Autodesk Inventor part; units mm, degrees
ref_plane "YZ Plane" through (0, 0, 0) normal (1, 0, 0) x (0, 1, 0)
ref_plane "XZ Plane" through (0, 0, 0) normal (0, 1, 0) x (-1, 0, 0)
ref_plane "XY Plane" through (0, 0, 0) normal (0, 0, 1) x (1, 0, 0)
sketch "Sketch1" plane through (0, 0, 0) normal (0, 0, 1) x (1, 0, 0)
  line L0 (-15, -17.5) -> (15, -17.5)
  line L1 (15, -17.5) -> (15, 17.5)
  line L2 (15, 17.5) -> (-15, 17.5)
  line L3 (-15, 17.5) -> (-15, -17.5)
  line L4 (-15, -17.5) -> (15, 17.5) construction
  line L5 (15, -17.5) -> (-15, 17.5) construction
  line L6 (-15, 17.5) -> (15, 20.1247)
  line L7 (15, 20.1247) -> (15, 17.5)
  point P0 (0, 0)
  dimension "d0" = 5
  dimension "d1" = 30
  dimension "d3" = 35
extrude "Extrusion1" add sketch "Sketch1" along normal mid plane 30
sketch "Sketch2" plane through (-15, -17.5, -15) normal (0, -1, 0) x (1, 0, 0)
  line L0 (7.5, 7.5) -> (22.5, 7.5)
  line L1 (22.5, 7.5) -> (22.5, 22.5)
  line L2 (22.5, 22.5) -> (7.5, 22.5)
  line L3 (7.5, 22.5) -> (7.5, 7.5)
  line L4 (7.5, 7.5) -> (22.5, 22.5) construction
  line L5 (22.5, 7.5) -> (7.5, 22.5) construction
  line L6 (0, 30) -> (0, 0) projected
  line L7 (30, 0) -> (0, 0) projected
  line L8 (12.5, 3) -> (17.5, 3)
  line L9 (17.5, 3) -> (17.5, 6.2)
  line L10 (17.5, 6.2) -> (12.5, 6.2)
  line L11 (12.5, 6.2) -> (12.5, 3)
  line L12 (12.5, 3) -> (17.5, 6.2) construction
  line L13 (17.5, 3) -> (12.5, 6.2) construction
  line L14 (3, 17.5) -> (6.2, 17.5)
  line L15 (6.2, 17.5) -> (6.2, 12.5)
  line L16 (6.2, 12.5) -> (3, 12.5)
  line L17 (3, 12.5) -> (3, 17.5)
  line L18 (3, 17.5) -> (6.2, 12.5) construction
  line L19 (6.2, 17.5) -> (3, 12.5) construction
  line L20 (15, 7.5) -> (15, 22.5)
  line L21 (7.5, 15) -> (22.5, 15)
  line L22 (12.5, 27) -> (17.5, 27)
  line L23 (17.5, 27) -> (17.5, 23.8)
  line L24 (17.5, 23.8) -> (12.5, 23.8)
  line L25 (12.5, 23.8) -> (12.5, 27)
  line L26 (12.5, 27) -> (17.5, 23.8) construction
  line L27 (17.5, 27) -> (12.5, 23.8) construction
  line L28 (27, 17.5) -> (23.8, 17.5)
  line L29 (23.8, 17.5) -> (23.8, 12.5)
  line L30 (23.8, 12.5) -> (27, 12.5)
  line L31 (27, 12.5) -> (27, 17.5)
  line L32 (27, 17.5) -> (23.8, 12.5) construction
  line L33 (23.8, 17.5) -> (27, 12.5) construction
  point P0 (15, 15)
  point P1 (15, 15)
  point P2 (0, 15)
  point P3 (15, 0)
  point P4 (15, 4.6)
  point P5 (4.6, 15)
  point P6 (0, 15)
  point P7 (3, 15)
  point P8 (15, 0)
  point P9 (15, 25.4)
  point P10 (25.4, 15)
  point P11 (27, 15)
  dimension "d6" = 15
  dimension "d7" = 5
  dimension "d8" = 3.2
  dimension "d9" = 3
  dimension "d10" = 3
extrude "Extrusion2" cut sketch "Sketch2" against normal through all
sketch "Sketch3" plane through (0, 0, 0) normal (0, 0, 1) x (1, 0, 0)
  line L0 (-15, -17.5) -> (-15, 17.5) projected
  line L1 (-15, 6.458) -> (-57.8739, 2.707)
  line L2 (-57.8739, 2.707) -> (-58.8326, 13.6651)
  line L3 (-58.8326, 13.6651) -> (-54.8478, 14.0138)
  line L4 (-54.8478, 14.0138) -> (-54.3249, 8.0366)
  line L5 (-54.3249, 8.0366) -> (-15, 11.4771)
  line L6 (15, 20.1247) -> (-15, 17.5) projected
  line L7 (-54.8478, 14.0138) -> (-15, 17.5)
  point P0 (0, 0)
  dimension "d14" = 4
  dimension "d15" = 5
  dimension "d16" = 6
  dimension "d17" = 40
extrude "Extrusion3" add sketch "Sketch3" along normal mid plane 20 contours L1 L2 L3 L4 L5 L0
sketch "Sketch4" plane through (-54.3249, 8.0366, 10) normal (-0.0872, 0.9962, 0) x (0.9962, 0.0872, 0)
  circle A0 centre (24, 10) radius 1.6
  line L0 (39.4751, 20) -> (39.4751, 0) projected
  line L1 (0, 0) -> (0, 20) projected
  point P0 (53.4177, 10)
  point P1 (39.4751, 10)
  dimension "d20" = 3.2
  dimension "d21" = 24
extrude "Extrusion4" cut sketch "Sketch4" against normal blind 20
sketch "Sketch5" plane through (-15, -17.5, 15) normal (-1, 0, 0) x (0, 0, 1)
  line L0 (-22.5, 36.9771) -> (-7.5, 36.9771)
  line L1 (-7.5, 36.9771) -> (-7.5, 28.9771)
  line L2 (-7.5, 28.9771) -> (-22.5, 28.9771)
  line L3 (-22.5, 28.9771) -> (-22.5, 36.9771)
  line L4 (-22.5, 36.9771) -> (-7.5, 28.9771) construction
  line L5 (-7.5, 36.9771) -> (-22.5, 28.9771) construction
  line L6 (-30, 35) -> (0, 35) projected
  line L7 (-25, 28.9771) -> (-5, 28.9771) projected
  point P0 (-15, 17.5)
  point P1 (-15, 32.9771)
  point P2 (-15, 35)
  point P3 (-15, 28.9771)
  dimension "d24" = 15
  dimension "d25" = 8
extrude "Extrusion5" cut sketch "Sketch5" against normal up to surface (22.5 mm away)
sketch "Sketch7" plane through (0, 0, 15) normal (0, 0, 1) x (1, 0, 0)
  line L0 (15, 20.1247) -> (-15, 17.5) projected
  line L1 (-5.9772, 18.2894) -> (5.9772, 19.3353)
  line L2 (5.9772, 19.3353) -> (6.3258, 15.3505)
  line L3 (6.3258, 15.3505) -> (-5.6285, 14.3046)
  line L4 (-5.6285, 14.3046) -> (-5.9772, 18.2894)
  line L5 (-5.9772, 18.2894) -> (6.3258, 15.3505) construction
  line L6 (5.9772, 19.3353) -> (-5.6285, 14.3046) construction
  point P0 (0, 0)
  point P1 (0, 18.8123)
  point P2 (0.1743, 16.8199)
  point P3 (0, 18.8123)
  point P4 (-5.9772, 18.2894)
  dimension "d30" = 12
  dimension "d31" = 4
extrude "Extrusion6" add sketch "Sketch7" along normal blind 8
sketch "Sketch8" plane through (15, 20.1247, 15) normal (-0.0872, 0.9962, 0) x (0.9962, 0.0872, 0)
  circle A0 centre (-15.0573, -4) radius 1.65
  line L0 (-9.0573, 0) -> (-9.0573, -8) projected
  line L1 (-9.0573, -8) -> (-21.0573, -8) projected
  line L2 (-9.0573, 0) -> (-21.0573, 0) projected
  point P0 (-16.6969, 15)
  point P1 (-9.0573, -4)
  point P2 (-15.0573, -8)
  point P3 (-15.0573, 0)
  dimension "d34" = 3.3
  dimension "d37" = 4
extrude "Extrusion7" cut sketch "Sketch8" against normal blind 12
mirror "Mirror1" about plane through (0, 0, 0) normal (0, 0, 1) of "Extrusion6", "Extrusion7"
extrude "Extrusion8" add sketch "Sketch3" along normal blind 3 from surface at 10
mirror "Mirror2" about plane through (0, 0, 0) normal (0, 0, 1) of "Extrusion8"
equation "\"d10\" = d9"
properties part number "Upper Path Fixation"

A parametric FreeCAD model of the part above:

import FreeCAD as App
import Part
import Sketcher

V = App.Vector
Q = App.Units.Quantity

doc = App.newDocument("Part")
body = doc.addObject("PartDesign::Body", "Body")

sketch1 = body.newObject("Sketcher::SketchObject", "Sketch")
sketch1.AttachmentSupport = (doc.getObject("XY_Plane"), [""])
sketch1.MapMode = "FlatFace"
sketch1.addGeometry(Part.LineSegment(V(-15, 18, 0), V(-15, -18, 0)), False)
sketch1.addGeometry(Part.LineSegment(V(-15, -18, 0), V(15, -18, 0)), False)
sketch1.addGeometry(Part.LineSegment(V(15, -18, 0), V(15, 20, 0)), False)
sketch1.addGeometry(Part.LineSegment(V(15, 20, 0), V(-15, 18, 0)), False)
sketch1.addConstraint(Sketcher.Constraint("Coincident", 0, 2, 1, 1))
sketch1.addConstraint(Sketcher.Constraint("Coincident", 1, 2, 2, 1))
sketch1.addConstraint(Sketcher.Constraint("Coincident", 2, 2, 3, 1))
sketch1.addConstraint(Sketcher.Constraint("Coincident", 3, 2, 0, 1))
sketch1.addConstraint(Sketcher.Constraint("Vertical", 0))
sketch1.addConstraint(Sketcher.Constraint("Horizontal", 1))
sketch1.addConstraint(Sketcher.Constraint("Vertical", 2))
sketch1.addConstraint(Sketcher.Constraint("Symmetric", 1, 2, 3, 2, -1, 1))
sketch1.addConstraint(Sketcher.Constraint("DistanceX", 1, 1, 1, 2, Q("30 mm")))
sketch1.addConstraint(Sketcher.Constraint("DistanceY", 0, 2, 0, 1, Q("35 mm")))
sketch1.addConstraint(Sketcher.Constraint("Angle", 3, Q("-175 deg")))
pad1 = body.newObject("PartDesign::Pad", "Pad")
pad1.Profile = sketch1
pad1.Length = 30
pad1.Midplane = True

sketch2 = body.newObject("Sketcher::SketchObject", "Sketch001")
sketch2.AttachmentSupport = (doc.getObject("XZ_Plane"), [""])
sketch2.MapMode = "FlatFace"
sketch2.AttachmentOffset = App.Placement(V(0, 0, 17.5), App.Rotation())
sketch2.addGeometry(Part.LineSegment(V(-7.5, -7.5, 0), V(7.5, -7.5, 0)), False)
sketch2.addGeometry(Part.LineSegment(V(7.5, -7.5, 0), V(7.5, 7.5, 0)), False)
sketch2.addGeometry(Part.LineSegment(V(7.5, 7.5, 0), V(-7.5, 7.5, 0)), False)
sketch2.addGeometry(Part.LineSegment(V(-7.5, 7.5, 0), V(-7.5, -7.5, 0)), False)
sketch2.addGeometry(Part.LineSegment(V(-2.5, -8.8, 0), V(-2.5, -12, 0)), False)
sketch2.addGeometry(Part.LineSegment(V(-2.5, -12, 0), V(2.5, -12, 0)), False)
sketch2.addGeometry(Part.LineSegment(V(2.5, -12, 0), V(2.5, -8.8, 0)), False)
sketch2.addGeometry(Part.LineSegment(V(2.5, -8.8, 0), V(-2.5, -8.8, 0)), False)
sketch2.addGeometry(Part.LineSegment(V(-8.8, 2.5, 0), V(-12, 2.5, 0)), False)
sketch2.addGeometry(Part.LineSegment(V(-12, 2.5, 0), V(-12, -2.5, 0)), False)
sketch2.addGeometry(Part.LineSegment(V(-12, -2.5, 0), V(-8.8, -2.5, 0)), False)
sketch2.addGeometry(Part.LineSegment(V(-8.8, -2.5, 0), V(-8.8, 2.5, 0)), False)
sketch2.addGeometry(Part.LineSegment(V(2.5, 12, 0), V(-2.5, 12, 0)), False)
sketch2.addGeometry(Part.LineSegment(V(-2.5, 12, 0), V(-2.5, 8.8, 0)), False)
sketch2.addGeometry(Part.LineSegment(V(-2.5, 8.8, 0), V(2.5, 8.8, 0)), False)
sketch2.addGeometry(Part.LineSegment(V(2.5, 8.8, 0), V(2.5, 12, 0)), False)
sketch2.addGeometry(Part.LineSegment(V(12, -2.5, 0), V(12, 2.5, 0)), False)
sketch2.addGeometry(Part.LineSegment(V(12, 2.5, 0), V(8.8, 2.5, 0)), False)
sketch2.addGeometry(Part.LineSegment(V(8.8, 2.5, 0), V(8.8, -2.5, 0)), False)
sketch2.addGeometry(Part.LineSegment(V(8.8, -2.5, 0), V(12, -2.5, 0)), False)
sketch2.addConstraint(Sketcher.Constraint("Coincident", 0, 2, 1, 1))
sketch2.addConstraint(Sketcher.Constraint("Coincident", 1, 2, 2, 1))
sketch2.addConstraint(Sketcher.Constraint("Coincident", 2, 2, 3, 1))
sketch2.addConstraint(Sketcher.Constraint("Coincident", 3, 2, 0, 1))
sketch2.addConstraint(Sketcher.Constraint("Coincident", 4, 2, 5, 1))
sketch2.addConstraint(Sketcher.Constraint("Coincident", 5, 2, 6, 1))
sketch2.addConstraint(Sketcher.Constraint("Coincident", 6, 2, 7, 1))
sketch2.addConstraint(Sketcher.Constraint("Coincident", 7, 2, 4, 1))
sketch2.addConstraint(Sketcher.Constraint("Coincident", 8, 2, 9, 1))
sketch2.addConstraint(Sketcher.Constraint("Coincident", 9, 2, 10, 1))
sketch2.addConstraint(Sketcher.Constraint("Coincident", 10, 2, 11, 1))
sketch2.addConstraint(Sketcher.Constraint("Coincident", 11, 2, 8, 1))
sketch2.addConstraint(Sketcher.Constraint("Coincident", 12, 2, 13, 1))
sketch2.addConstraint(Sketcher.Constraint("Coincident", 13, 2, 14, 1))
sketch2.addConstraint(Sketcher.Constraint("Coincident", 14, 2, 15, 1))
sketch2.addConstraint(Sketcher.Constraint("Coincident", 15, 2, 12, 1))
sketch2.addConstraint(Sketcher.Constraint("Coincident", 16, 2, 17, 1))
sketch2.addConstraint(Sketcher.Constraint("Coincident", 17, 2, 18, 1))
sketch2.addConstraint(Sketcher.Constraint("Coincident", 18, 2, 19, 1))
sketch2.addConstraint(Sketcher.Constraint("Coincident", 19, 2, 16, 1))
sketch2.addConstraint(Sketcher.Constraint("Horizontal", 0))
sketch2.addConstraint(Sketcher.Constraint("Vertical", 1))
sketch2.addConstraint(Sketcher.Constraint("Horizontal", 2))
sketch2.addConstraint(Sketcher.Constraint("Vertical", 3))
sketch2.addConstraint(Sketcher.Constraint("Vertical", 4))
sketch2.addConstraint(Sketcher.Constraint("Horizontal", 5))
sketch2.addConstraint(Sketcher.Constraint("Vertical", 6))
sketch2.addConstraint(Sketcher.Constraint("Horizontal", 7))
sketch2.addConstraint(Sketcher.Constraint("Horizontal", 8))
sketch2.addConstraint(Sketcher.Constraint("Vertical", 9))
sketch2.addConstraint(Sketcher.Constraint("Horizontal", 10))
sketch2.addConstraint(Sketcher.Constraint("Vertical", 11))
sketch2.addConstraint(Sketcher.Constraint("Horizontal", 12))
sketch2.addConstraint(Sketcher.Constraint("Vertical", 13))
sketch2.addConstraint(Sketcher.Constraint("Horizontal", 14))
sketch2.addConstraint(Sketcher.Constraint("Vertical", 15))
sketch2.addConstraint(Sketcher.Constraint("Vertical", 16))
sketch2.addConstraint(Sketcher.Constraint("Horizontal", 17))
sketch2.addConstraint(Sketcher.Constraint("Vertical", 18))
sketch2.addConstraint(Sketcher.Constraint("Horizontal", 19))
sketch2.addConstraint(Sketcher.Constraint("Symmetric", 0, 2, 2, 2, -1, 1))
sketch2.addConstraint(Sketcher.Constraint("Symmetric", 5, 2, 12, 2, -1, 1))
sketch2.addConstraint(Sketcher.Constraint("Symmetric", 7, 2, 14, 2, -1, 1))
sketch2.addConstraint(Sketcher.Constraint("Symmetric", 9, 2, 16, 2, -1, 1))
sketch2.addConstraint(Sketcher.Constraint("Symmetric", 11, 2, 18, 2, -1, 1))
sketch2.addConstraint(Sketcher.Constraint("Horizontal", 11, 2, 16, 2))
sketch2.addConstraint(Sketcher.Constraint("Vertical", 7, 2, 12, 2))
sketch2.addConstraint(Sketcher.Constraint("Equal", 2, 1))
sketch2.addConstraint(Sketcher.Constraint("Equal", 19, 4))
sketch2.addConstraint(Sketcher.Constraint("Equal", 14, 9))
sketch2.addConstraint(Sketcher.Constraint("DistanceX", 0, 1, 0, 2, Q("15 mm")))
sketch2.addConstraint(Sketcher.Constraint("DistanceX", 5, 1, 5, 2, Q("5 mm")))
sketch2.addConstraint(Sketcher.Constraint("DistanceX", 8, 2, 8, 1, Q("3.2 mm")))
sketch2.addConstraint(Sketcher.Constraint("DistanceY", 4, 2, -1, 1, Q("12 mm")))
sketch2.addConstraint(Sketcher.Constraint("DistanceX", 8, 2, -1, 1, Q("12 mm")))
pocket1 = body.newObject("PartDesign::Pocket", "Pocket")
pocket1.Profile = sketch2
pocket1.Type = "ThroughAll"

sketch3 = body.newObject("Sketcher::SketchObject", "Sketch002")
sketch3.AttachmentSupport = (doc.getObject("XY_Plane"), [""])
sketch3.MapMode = "FlatFace"
sketch3.addGeometry(Part.LineSegment(V(-57.9, 2.7, 0), V(-15, 6.5, 0)), False)
sketch3.addGeometry(Part.LineSegment(V(-15, 6.5, 0), V(-15, 11.5, 0)), False)
sketch3.addGeometry(Part.LineSegment(V(-15, 11.5, 0), V(-54.3, 8, 0)), False)
sketch3.addGeometry(Part.LineSegment(V(-54.3, 8, 0), V(-54.8, 14, 0)), False)
sketch3.addGeometry(Part.LineSegment(V(-54.8, 14, 0), V(-58.8, 13.7, 0)), False)
sketch3.addGeometry(Part.LineSegment(V(-58.8, 13.7, 0), V(-57.9, 2.7, 0)), False)
sketch3.addConstraint(Sketcher.Constraint("Coincident", 0, 2, 1, 1))
sketch3.addConstraint(Sketcher.Constraint("Coincident", 1, 2, 2, 1))
sketch3.addConstraint(Sketcher.Constraint("Coincident", 2, 2, 3, 1))
sketch3.addConstraint(Sketcher.Constraint("Coincident", 3, 2, 4, 1))
sketch3.addConstraint(Sketcher.Constraint("Coincident", 4, 2, 5, 1))
sketch3.addConstraint(Sketcher.Constraint("Coincident", 5, 2, 0, 1))
sketch3.addConstraint(Sketcher.Constraint("Vertical", 1))
sketch3.addConstraint(Sketcher.Constraint("Parallel", 0, 2))
sketch3.addConstraint(Sketcher.Constraint("Perpendicular", 2, 3))
sketch3.addConstraint(Sketcher.Constraint("Perpendicular", 3, 4))
sketch3.addConstraint(Sketcher.Constraint("Perpendicular", 4, 5))
sketch3.addConstraint(Sketcher.Constraint("Angle", 0, Q("5 deg")))
sketch3.addConstraint(Sketcher.Constraint("Distance", 3, Q("6 mm")))
sketch3.addConstraint(Sketcher.Constraint("Distance", 4, Q("4 mm")))
sketch3.addConstraint(Sketcher.Constraint("Distance", 5, Q("11 mm")))
sketch3.addConstraint(Sketcher.Constraint("DistanceX", 0, 2, -1, 1, Q("15 mm")))
sketch3.addConstraint(Sketcher.Constraint("DistanceY", 5, 2, 1, 2, Q("8.77 mm")))
sketch3.addConstraint(Sketcher.Constraint("DistanceY", -1, 1, 0, 2, Q("6.458 mm")))
pad2 = body.newObject("PartDesign::Pad", "Pad001")
pad2.Profile = sketch3
pad2.Length = 20
pad2.Midplane = True

sketch4 = body.newObject("Sketcher::SketchObject", "Sketch003")
sketch4.Placement = App.Placement(V(-54.3249, 8.0366, 10), App.Rotation(V(0.996194698, 0.087155743, 0), V(0, 0, -1), V(-0.087155743, 0.996194698, 0), "ZXY"))
sketch4.addGeometry(Part.Circle(V(24, 10, 0), V(0, 0, 1), 1.6), False)
sketch4.addConstraint(Sketcher.Constraint("Diameter", 0, Q("3.2 mm")))
sketch4.addConstraint(Sketcher.Constraint("DistanceX", -1, 1, 0, 3, Q("24 mm")))
sketch4.addConstraint(Sketcher.Constraint("DistanceY", -1, 1, 0, 3, Q("10 mm")))
pocket2 = body.newObject("PartDesign::Pocket", "Pocket001")
pocket2.Profile = sketch4
pocket2.Length = 20

sketch5 = body.newObject("Sketcher::SketchObject", "Sketch004")
sketch5.AttachmentSupport = (doc.getObject("YZ_Plane"), [""])
sketch5.MapMode = "FlatFace"
sketch5.AttachmentOffset = App.Placement(V(0, 0, -15), App.Rotation())
sketch5.addGeometry(Part.LineSegment(V(19, 8, 0), V(19, -8, 0)), False)
sketch5.addGeometry(Part.LineSegment(V(19, -8, 0), V(11, -8, 0)), False)
sketch5.addGeometry(Part.LineSegment(V(11, -8, 0), V(11, 8, 0)), False)
sketch5.addGeometry(Part.LineSegment(V(11, 8, 0), V(19, 8, 0)), False)
sketch5.addConstraint(Sketcher.Constraint("Coincident", 0, 2, 1, 1))
sketch5.addConstraint(Sketcher.Constraint("Coincident", 1, 2, 2, 1))
sketch5.addConstraint(Sketcher.Constraint("Coincident", 2, 2, 3, 1))
sketch5.addConstraint(Sketcher.Constraint("Coincident", 3, 2, 0, 1))
sketch5.addConstraint(Sketcher.Constraint("Vertical", 0))
sketch5.addConstraint(Sketcher.Constraint("Horizontal", 1))
sketch5.addConstraint(Sketcher.Constraint("Vertical", 2))
sketch5.addConstraint(Sketcher.Constraint("Horizontal", 3))
sketch5.addConstraint(Sketcher.Constraint("DistanceX", 1, 2, 1, 1, Q("8 mm")))
sketch5.addConstraint(Sketcher.Constraint("DistanceY", 0, 2, 0, 1, Q("15 mm")))
sketch5.addConstraint(Sketcher.Constraint("DistanceY", 0, 2, -1, 1, Q("7.5 mm")))
sketch5.addConstraint(Sketcher.Constraint("DistanceX", -1, 1, 0, 2, Q("19.477 mm")))
pocket3 = body.newObject("PartDesign::Pocket", "Pocket002")
pocket3.Profile = sketch5
pocket3.Length = 22.5
pocket3.Reversed = True

sketch6 = body.newObject("Sketcher::SketchObject", "Sketch005")
sketch6.AttachmentSupport = (doc.getObject("XY_Plane"), [""])
sketch6.MapMode = "FlatFace"
sketch6.AttachmentOffset = App.Placement(V(0, 0, 15), App.Rotation())
sketch6.addGeometry(Part.LineSegment(V(6.3, 15.4, 0), V(6, 19.3, 0)), False)
sketch6.addGeometry(Part.LineSegment(V(6, 19.3, 0), V(-6, 18.3, 0)), False)
sketch6.addGeometry(Part.LineSegment(V(-6, 18.3, 0), V(-5.6, 14.3, 0)), False)
sketch6.addGeometry(Part.LineSegment(V(-5.6, 14.3, 0), V(6.3, 15.4, 0)), False)
sketch6.addConstraint(Sketcher.Constraint("Coincident", 0, 2, 1, 1))
sketch6.addConstraint(Sketcher.Constraint("Coincident", 1, 2, 2, 1))
sketch6.addConstraint(Sketcher.Constraint("Coincident", 2, 2, 3, 1))
sketch6.addConstraint(Sketcher.Constraint("Coincident", 3, 2, 0, 1))
sketch6.addConstraint(Sketcher.Constraint("Perpendicular", 0, 1))
sketch6.addConstraint(Sketcher.Constraint("Perpendicular", 1, 2))
sketch6.addConstraint(Sketcher.Constraint("Perpendicular", 2, 3))
sketch6.addConstraint(Sketcher.Constraint("Distance", 0, Q("4 mm")))
sketch6.addConstraint(Sketcher.Constraint("Distance", 1, Q("12 mm")))
sketch6.addConstraint(Sketcher.Constraint("Angle", 0, Q("94.9996 deg")))
sketch6.addConstraint(Sketcher.Constraint("DistanceX", -1, 1, 0, 2, Q("5.9772 mm")))
sketch6.addConstraint(Sketcher.Constraint("DistanceY", -1, 1, 0, 2, Q("19.3353 mm")))
pad3 = body.newObject("PartDesign::Pad", "Pad002")
pad3.Profile = sketch6
pad3.Length = 8

sketch7 = body.newObject("Sketcher::SketchObject", "Sketch006")
sketch7.Placement = App.Placement(V(15, 20.1247, 15), App.Rotation(V(0.996194698, 0.087155743, 0), V(0, 0, -1), V(-0.087155743, 0.996194698, 0), "ZXY"))
sketch7.addGeometry(Part.Circle(V(-15.1, -4, 0), V(0, 0, 1), 1.6), False)
sketch7.addConstraint(Sketcher.Constraint("Diameter", 0, Q("3.3 mm")))
sketch7.addConstraint(Sketcher.Constraint("DistanceY", 0, 3, -1, 1, Q("4 mm")))
sketch7.addConstraint(Sketcher.Constraint("DistanceX", 0, 3, -1, 1, Q("15.0573 mm")))
pocket4 = body.newObject("PartDesign::Pocket", "Pocket003")
pocket4.Profile = sketch7
pocket4.Length = 12
doc.recompute()

mirrored = body.newObject("PartDesign::Mirrored", "Mirrored")
mirrored.Originals = [pad3, pocket4]
mirrored.MirrorPlane = (doc.getObject("XY_Plane"), [""])
body.Tip = mirrored

sketch8 = body.newObject("Sketcher::SketchObject", "Sketch007")
sketch8.AttachmentSupport = (doc.getObject("XY_Plane"), [""])
sketch8.MapMode = "FlatFace"
sketch8.AttachmentOffset = App.Placement(V(0, 0, 10), App.Rotation())
sketch8.addGeometry(Part.LineSegment(V(-57.9, 2.7, 0), V(-15, 6.5, 0)), False)
sketch8.addGeometry(Part.LineSegment(V(-15, 6.5, 0), V(-15, 17.5, 0)), False)
sketch8.addGeometry(Part.LineSegment(V(-15, 17.5, 0), V(-54.8, 14, 0)), False)
sketch8.addGeometry(Part.LineSegment(V(-54.8, 14, 0), V(-58.8, 13.7, 0)), False)
sketch8.addGeometry(Part.LineSegment(V(-58.8, 13.7, 0), V(-57.9, 2.7, 0)), False)
sketch8.addConstraint(Sketcher.Constraint("Coincident", 0, 2, 1, 1))
sketch8.addConstraint(Sketcher.Constraint("Coincident", 1, 2, 2, 1))
sketch8.addConstraint(Sketcher.Constraint("Coincident", 2, 2, 3, 1))
sketch8.addConstraint(Sketcher.Constraint("Coincident", 3, 2, 4, 1))
sketch8.addConstraint(Sketcher.Constraint("Coincident", 4, 2, 0, 1))
sketch8.addConstraint(Sketcher.Constraint("Vertical", 1))
sketch8.addConstraint(Sketcher.Constraint("Parallel", 0, 2))
sketch8.addConstraint(Sketcher.Constraint("Parallel", 2, 3))
sketch8.addConstraint(Sketcher.Constraint("Perpendicular", 3, 4))
sketch8.addConstraint(Sketcher.Constraint("Angle", 0, Q("5 deg")))
sketch8.addConstraint(Sketcher.Constraint("Distance", 2, Q("40 mm")))
sketch8.addConstraint(Sketcher.Constraint("Distance", 3, Q("4 mm")))
sketch8.addConstraint(Sketcher.Constraint("Distance", 4, Q("11 mm")))
sketch8.addConstraint(Sketcher.Constraint("DistanceX", 0, 2, -1, 1, Q("15 mm")))
sketch8.addConstraint(Sketcher.Constraint("DistanceY", -1, 1, 1, 2, Q("17.5 mm")))
pad4 = body.newObject("PartDesign::Pad", "Pad003")
pad4.Profile = sketch8
pad4.Length = 3
doc.recompute()

mirrored2 = body.newObject("PartDesign::Mirrored", "Mirrored001")
mirrored2.Originals = [pad4]
mirrored2.MirrorPlane = (doc.getObject("XY_Plane"), [""])
body.Tip = mirrored2

doc.recompute()
